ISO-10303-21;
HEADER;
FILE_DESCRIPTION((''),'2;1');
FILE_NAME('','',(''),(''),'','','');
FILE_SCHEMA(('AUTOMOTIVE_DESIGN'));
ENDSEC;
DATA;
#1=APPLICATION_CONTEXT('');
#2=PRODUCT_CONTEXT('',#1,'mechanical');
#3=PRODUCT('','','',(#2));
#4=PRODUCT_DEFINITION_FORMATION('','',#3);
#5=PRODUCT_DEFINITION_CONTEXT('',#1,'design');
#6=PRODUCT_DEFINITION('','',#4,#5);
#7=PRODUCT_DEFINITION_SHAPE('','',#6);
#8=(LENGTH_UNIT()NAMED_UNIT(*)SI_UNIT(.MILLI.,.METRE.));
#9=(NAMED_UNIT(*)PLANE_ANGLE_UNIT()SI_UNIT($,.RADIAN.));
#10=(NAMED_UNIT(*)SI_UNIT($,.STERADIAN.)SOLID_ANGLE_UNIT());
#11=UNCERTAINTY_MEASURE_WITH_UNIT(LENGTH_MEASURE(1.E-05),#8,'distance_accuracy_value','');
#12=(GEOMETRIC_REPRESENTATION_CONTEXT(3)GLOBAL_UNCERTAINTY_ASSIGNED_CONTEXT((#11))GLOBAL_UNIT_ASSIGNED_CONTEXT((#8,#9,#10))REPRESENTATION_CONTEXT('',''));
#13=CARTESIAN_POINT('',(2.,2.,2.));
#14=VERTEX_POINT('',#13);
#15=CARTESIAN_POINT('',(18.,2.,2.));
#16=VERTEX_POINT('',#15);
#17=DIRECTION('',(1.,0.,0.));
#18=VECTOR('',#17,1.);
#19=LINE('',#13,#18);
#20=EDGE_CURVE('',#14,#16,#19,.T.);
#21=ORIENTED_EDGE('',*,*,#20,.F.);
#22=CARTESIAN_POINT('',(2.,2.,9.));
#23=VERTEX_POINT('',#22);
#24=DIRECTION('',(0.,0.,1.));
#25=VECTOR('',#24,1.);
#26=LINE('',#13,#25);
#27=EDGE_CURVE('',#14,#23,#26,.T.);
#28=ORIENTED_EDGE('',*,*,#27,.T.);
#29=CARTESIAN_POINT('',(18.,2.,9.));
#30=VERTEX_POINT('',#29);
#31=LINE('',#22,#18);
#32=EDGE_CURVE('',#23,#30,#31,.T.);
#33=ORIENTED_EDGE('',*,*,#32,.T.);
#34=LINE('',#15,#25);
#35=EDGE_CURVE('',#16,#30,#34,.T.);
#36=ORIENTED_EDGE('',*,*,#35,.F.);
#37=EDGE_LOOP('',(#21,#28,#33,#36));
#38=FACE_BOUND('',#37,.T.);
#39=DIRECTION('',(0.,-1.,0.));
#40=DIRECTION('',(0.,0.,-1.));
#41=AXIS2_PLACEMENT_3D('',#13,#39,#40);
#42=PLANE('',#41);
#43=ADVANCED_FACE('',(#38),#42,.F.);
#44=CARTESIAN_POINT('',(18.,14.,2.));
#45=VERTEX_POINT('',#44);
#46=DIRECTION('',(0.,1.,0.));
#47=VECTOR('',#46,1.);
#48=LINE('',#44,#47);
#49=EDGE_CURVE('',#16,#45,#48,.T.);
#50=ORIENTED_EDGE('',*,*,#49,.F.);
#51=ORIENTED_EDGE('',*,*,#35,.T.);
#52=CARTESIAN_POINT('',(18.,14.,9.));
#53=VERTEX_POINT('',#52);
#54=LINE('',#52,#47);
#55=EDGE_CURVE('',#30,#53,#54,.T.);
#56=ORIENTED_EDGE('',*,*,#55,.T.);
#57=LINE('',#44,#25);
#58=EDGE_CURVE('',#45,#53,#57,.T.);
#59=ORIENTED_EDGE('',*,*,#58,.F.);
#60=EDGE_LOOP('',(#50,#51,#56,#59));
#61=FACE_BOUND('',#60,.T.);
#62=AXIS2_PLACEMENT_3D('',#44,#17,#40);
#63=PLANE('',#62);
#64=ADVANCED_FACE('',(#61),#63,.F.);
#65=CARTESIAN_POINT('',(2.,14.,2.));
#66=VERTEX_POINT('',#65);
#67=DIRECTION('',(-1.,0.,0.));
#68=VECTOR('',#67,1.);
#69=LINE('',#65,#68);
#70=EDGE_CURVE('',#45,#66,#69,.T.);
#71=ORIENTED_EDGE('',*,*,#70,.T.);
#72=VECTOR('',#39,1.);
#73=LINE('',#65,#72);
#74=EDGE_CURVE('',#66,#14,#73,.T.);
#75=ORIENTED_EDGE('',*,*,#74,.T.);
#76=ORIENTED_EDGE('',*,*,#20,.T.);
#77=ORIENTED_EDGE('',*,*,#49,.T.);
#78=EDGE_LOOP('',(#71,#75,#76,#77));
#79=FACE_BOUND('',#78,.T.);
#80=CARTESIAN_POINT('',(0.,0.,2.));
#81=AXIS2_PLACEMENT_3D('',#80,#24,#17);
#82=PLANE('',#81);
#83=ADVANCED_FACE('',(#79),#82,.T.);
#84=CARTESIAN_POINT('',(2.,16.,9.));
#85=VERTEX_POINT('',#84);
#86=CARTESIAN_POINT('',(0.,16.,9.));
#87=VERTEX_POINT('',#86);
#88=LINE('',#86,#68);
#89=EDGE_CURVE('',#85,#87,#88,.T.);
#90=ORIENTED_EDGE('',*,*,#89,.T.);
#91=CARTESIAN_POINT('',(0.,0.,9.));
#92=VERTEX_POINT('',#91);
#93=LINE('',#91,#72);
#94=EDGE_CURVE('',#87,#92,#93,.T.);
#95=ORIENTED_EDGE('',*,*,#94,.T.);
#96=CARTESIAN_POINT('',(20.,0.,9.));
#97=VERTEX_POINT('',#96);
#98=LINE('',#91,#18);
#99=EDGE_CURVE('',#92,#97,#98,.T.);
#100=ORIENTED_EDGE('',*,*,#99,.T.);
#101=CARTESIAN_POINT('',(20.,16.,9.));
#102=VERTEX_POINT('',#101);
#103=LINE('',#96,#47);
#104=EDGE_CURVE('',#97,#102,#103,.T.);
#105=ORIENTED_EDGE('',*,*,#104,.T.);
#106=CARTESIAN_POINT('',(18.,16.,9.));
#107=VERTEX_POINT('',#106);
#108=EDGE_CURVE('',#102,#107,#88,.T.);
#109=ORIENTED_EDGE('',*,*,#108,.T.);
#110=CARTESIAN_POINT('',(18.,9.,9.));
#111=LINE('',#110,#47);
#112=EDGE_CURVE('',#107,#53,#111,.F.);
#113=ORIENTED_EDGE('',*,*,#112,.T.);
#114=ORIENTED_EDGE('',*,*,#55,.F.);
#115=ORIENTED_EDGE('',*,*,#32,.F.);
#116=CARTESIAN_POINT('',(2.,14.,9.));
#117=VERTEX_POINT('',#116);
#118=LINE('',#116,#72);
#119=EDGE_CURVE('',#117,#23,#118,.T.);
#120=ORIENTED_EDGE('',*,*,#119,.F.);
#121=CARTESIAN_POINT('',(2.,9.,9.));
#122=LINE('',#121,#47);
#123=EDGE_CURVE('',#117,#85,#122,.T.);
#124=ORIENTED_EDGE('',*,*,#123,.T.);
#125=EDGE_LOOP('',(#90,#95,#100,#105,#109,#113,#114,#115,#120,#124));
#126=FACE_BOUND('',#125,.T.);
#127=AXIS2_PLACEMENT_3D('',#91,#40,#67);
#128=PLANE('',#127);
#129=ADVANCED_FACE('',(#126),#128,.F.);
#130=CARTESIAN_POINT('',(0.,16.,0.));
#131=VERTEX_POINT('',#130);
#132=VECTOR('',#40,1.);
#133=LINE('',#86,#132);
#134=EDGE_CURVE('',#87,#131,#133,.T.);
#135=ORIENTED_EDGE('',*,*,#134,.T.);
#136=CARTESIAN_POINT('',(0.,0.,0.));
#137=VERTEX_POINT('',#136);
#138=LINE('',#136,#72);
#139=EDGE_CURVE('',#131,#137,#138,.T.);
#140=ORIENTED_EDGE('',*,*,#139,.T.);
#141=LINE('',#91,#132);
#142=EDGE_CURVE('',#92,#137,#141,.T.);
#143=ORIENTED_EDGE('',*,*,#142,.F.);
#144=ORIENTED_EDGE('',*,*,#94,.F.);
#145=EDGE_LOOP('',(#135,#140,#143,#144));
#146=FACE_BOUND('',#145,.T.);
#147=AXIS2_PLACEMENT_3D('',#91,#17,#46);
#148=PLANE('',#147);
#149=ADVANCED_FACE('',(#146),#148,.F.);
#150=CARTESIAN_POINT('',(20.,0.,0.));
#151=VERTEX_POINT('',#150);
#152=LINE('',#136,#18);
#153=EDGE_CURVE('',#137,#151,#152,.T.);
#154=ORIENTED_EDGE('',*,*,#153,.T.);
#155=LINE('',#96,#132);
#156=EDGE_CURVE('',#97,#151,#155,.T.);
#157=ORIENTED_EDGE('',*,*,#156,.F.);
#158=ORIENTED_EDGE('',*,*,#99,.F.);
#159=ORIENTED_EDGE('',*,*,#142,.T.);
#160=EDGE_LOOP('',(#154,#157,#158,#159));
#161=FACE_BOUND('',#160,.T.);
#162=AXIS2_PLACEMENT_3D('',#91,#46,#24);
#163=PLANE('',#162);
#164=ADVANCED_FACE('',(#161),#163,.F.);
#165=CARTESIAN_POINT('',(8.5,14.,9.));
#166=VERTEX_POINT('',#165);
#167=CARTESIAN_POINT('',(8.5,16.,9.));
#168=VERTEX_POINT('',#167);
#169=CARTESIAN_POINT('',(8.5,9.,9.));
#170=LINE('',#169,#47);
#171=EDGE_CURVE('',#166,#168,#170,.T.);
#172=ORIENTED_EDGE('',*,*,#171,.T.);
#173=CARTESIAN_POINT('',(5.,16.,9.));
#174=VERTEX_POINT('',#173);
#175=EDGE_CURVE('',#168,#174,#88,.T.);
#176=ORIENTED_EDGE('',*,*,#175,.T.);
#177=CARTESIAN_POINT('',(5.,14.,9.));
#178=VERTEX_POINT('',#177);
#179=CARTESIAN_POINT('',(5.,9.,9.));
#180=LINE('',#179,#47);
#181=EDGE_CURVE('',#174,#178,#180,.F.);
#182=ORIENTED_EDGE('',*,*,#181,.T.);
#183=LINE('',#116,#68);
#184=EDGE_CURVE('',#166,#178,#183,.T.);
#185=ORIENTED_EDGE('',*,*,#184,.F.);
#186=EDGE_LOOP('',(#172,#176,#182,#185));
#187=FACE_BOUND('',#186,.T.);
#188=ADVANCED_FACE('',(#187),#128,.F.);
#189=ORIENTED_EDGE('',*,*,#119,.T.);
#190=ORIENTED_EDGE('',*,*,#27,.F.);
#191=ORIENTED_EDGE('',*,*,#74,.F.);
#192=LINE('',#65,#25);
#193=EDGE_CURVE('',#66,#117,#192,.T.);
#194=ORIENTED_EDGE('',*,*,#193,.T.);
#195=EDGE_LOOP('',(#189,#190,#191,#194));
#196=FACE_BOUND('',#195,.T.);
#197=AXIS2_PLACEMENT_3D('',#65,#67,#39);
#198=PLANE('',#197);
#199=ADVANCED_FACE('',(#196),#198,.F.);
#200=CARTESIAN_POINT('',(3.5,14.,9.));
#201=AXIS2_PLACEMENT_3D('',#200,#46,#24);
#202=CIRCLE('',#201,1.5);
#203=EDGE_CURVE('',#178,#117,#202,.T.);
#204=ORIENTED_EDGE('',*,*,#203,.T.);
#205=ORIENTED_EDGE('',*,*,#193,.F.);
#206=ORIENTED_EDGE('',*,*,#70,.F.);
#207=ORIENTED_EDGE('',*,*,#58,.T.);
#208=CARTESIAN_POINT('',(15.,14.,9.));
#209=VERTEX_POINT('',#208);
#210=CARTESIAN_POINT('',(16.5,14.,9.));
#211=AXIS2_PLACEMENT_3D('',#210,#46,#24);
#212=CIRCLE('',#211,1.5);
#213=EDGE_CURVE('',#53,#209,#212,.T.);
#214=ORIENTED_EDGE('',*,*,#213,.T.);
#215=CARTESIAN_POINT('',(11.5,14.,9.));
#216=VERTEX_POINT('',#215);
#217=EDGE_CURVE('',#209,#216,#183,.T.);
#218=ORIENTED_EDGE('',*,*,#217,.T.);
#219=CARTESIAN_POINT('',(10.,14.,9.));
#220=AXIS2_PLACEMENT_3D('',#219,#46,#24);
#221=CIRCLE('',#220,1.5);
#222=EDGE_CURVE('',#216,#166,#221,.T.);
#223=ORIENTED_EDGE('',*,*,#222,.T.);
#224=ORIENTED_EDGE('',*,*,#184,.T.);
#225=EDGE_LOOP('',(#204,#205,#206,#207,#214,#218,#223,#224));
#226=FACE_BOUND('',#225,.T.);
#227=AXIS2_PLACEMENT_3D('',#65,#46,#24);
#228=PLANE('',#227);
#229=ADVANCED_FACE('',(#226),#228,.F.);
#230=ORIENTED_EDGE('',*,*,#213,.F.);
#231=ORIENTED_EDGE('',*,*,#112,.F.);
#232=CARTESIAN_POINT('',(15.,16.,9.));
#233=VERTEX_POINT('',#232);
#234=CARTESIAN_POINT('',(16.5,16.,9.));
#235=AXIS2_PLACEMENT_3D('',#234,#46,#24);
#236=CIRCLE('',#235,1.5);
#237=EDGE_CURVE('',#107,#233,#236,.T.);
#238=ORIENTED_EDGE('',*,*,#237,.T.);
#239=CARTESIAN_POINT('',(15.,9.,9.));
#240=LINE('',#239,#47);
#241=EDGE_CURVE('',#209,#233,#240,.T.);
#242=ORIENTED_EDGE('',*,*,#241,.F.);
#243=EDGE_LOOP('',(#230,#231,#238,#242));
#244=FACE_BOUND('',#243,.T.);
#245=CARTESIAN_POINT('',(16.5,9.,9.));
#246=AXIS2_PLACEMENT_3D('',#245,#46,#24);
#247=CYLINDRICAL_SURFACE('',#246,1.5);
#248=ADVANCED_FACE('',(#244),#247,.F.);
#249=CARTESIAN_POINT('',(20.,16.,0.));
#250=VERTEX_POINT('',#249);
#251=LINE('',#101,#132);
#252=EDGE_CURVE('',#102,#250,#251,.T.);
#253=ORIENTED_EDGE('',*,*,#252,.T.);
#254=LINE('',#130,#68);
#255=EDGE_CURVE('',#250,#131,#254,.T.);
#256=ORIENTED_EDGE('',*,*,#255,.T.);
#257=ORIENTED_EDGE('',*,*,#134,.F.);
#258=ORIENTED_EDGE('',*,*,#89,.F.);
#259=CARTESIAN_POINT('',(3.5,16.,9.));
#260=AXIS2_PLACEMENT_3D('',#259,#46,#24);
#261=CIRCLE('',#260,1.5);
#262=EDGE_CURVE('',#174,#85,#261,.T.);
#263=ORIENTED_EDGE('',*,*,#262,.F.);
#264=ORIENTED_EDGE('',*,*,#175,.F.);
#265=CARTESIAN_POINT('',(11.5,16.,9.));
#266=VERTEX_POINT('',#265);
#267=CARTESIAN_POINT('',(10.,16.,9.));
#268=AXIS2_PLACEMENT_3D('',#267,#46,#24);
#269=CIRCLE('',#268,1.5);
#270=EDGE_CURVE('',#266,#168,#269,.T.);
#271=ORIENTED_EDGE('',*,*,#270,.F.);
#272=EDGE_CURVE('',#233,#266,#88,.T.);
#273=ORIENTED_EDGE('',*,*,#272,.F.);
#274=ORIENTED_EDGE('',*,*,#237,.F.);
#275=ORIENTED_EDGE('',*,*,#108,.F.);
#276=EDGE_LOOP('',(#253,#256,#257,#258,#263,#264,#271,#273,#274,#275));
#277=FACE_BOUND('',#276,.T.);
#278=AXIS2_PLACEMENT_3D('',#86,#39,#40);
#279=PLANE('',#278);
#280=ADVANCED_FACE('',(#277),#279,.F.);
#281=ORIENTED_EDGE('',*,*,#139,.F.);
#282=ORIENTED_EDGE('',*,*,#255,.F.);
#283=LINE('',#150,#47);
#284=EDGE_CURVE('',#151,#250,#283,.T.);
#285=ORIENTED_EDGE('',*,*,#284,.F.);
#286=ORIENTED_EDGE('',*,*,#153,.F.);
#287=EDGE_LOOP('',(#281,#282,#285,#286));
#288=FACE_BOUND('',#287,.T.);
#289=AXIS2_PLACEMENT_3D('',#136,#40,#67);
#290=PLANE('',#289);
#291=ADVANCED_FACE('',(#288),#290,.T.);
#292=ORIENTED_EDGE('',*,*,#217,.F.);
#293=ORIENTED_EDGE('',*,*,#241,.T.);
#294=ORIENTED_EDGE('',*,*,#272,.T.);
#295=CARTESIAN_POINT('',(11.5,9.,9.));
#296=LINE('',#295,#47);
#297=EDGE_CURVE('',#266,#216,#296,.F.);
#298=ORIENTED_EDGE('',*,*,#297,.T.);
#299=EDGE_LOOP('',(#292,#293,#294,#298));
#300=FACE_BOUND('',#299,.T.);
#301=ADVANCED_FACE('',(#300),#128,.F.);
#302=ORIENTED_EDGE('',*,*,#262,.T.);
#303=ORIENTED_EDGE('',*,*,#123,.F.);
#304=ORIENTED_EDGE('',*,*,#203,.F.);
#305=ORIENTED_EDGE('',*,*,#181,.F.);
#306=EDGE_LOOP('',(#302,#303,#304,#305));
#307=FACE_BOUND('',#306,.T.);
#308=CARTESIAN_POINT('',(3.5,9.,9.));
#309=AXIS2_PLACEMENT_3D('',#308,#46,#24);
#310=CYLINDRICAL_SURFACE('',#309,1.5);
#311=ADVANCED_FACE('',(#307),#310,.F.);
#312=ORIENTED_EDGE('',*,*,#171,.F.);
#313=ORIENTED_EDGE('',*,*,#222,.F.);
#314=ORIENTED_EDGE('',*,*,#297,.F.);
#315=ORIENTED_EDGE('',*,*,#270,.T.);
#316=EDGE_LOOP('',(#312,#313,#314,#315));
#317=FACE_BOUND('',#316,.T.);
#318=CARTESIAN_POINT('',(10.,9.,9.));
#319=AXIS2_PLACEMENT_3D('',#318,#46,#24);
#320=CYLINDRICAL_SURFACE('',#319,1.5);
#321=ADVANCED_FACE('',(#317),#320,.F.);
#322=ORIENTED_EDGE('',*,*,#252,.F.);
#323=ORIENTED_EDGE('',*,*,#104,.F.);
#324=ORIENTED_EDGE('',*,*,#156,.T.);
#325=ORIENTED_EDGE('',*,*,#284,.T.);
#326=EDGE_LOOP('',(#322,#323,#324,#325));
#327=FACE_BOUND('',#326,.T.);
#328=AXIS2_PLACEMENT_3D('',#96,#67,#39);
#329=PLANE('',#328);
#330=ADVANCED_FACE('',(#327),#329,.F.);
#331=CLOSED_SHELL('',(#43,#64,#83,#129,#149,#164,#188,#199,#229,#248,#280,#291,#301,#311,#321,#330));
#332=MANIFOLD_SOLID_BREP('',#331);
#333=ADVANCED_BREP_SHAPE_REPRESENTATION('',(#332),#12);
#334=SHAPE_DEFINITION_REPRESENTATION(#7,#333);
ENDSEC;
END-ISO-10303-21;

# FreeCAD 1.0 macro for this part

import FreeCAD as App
import Part
import Sketcher

V = App.Vector


def add_polygon(sketch, points):
    """Adds a closed chain of lines whose ends are joined by coincident constraints."""
    first, n = sketch.GeometryCount, len(points)
    for a, b in zip(points, points[1:] + points[:1]):
        sketch.addGeometry(Part.LineSegment(App.Vector(*a, 0), App.Vector(*b, 0)), False)
    for i in range(n):
        sketch.addConstraint(Sketcher.Constraint("Coincident", first + i, 2, first + (i + 1) % n, 1))

doc = App.newDocument("Part")
body = doc.addObject("PartDesign::Body", "Body")

sketch1 = doc.addObject("Sketcher::SketchObject", "Sketch")
body.addObject(sketch1)
sketch1.AttachmentSupport = (doc.XY_Plane, [""])
sketch1.MapMode = "FlatFace"
add_polygon(sketch1, [(0, 16), (0, 0), (20, 0), (20, 16)])
sketch1.addConstraint([
    Sketcher.Constraint("Vertical", 0),
    Sketcher.Constraint("Horizontal", 1),
    Sketcher.Constraint("Vertical", 2),
    Sketcher.Constraint("Horizontal", 3),
    Sketcher.Constraint("Coincident", 0, 2, -1, 1),
    Sketcher.Constraint("DistanceX", 1, 1, 1, 2, 20.0),
    Sketcher.Constraint("DistanceY", 0, 2, 0, 1, 16.0),
])
pad1 = doc.addObject("PartDesign::Pad", "Pad")
body.addObject(pad1)
pad1.Profile = sketch1
pad1.Length = 9

sketch2 = doc.addObject("Sketcher::SketchObject", "Sketch001")
body.addObject(sketch2)
sketch2.AttachmentSupport = (doc.XY_Plane, [""])
sketch2.MapMode = "FlatFace"
sketch2.AttachmentOffset = App.Placement(V(0, 0, 9), App.Rotation())
add_polygon(sketch2, [(2, 14), (2, 2), (18, 2), (18, 14)])
sketch2.addConstraint([
    Sketcher.Constraint("Vertical", 0),
    Sketcher.Constraint("Horizontal", 1),
    Sketcher.Constraint("Vertical", 2),
    Sketcher.Constraint("Horizontal", 3),
    Sketcher.Constraint("DistanceX", 1, 1, 1, 2, 16.0),
    Sketcher.Constraint("DistanceY", 0, 2, 0, 1, 12.0),
    Sketcher.Constraint("DistanceX", -1, 1, 0, 2, 2.0),
    Sketcher.Constraint("DistanceY", -1, 1, 0, 2, 2.0),
])
pocket1 = doc.addObject("PartDesign::Pocket", "Pocket")
body.addObject(pocket1)
pocket1.Profile = sketch2
pocket1.Length = 7

sketch3 = doc.addObject("Sketcher::SketchObject", "Sketch002")
body.addObject(sketch3)
sketch3.AttachmentSupport = (doc.XZ_Plane, [""])
sketch3.MapMode = "FlatFace"
sketch3.AttachmentOffset = App.Placement(V(0, 0, -16), App.Rotation())
sketch3.addGeometry([
    Part.Circle(V(3.5, 9, 0), V(0, 0, 1), 1.5),
    Part.Circle(V(10, 9, 0), V(0, 0, 1), 1.5),
    Part.Circle(V(16.5, 9, 0), V(0, 0, 1), 1.5),
], False)
sketch3.addConstraint([
    Sketcher.Constraint("Equal", 0, 1),
    Sketcher.Constraint("Equal", 1, 2),
    Sketcher.Constraint("Horizontal", 0, 3, 1, 3),
    Sketcher.Constraint("Horizontal", 1, 3, 2, 3),
    Sketcher.Constraint("Diameter", 0, 3.0),
    Sketcher.Constraint("DistanceY", -1, 1, 0, 3, 9.0),
    Sketcher.Constraint("DistanceX", -1, 1, 1, 3, 10.0),
    Sketcher.Constraint("DistanceX", 0, 3, 2, 3, 13.0),
    Sketcher.Constraint("DistanceX", -1, 1, 0, 3, 3.5),
])
pocket2 = doc.addObject("PartDesign::Pocket", "Pocket001")
body.addObject(pocket2)
pocket2.Profile = sketch3
pocket2.Length = 7
pocket2.Reversed = True

doc.recompute()
